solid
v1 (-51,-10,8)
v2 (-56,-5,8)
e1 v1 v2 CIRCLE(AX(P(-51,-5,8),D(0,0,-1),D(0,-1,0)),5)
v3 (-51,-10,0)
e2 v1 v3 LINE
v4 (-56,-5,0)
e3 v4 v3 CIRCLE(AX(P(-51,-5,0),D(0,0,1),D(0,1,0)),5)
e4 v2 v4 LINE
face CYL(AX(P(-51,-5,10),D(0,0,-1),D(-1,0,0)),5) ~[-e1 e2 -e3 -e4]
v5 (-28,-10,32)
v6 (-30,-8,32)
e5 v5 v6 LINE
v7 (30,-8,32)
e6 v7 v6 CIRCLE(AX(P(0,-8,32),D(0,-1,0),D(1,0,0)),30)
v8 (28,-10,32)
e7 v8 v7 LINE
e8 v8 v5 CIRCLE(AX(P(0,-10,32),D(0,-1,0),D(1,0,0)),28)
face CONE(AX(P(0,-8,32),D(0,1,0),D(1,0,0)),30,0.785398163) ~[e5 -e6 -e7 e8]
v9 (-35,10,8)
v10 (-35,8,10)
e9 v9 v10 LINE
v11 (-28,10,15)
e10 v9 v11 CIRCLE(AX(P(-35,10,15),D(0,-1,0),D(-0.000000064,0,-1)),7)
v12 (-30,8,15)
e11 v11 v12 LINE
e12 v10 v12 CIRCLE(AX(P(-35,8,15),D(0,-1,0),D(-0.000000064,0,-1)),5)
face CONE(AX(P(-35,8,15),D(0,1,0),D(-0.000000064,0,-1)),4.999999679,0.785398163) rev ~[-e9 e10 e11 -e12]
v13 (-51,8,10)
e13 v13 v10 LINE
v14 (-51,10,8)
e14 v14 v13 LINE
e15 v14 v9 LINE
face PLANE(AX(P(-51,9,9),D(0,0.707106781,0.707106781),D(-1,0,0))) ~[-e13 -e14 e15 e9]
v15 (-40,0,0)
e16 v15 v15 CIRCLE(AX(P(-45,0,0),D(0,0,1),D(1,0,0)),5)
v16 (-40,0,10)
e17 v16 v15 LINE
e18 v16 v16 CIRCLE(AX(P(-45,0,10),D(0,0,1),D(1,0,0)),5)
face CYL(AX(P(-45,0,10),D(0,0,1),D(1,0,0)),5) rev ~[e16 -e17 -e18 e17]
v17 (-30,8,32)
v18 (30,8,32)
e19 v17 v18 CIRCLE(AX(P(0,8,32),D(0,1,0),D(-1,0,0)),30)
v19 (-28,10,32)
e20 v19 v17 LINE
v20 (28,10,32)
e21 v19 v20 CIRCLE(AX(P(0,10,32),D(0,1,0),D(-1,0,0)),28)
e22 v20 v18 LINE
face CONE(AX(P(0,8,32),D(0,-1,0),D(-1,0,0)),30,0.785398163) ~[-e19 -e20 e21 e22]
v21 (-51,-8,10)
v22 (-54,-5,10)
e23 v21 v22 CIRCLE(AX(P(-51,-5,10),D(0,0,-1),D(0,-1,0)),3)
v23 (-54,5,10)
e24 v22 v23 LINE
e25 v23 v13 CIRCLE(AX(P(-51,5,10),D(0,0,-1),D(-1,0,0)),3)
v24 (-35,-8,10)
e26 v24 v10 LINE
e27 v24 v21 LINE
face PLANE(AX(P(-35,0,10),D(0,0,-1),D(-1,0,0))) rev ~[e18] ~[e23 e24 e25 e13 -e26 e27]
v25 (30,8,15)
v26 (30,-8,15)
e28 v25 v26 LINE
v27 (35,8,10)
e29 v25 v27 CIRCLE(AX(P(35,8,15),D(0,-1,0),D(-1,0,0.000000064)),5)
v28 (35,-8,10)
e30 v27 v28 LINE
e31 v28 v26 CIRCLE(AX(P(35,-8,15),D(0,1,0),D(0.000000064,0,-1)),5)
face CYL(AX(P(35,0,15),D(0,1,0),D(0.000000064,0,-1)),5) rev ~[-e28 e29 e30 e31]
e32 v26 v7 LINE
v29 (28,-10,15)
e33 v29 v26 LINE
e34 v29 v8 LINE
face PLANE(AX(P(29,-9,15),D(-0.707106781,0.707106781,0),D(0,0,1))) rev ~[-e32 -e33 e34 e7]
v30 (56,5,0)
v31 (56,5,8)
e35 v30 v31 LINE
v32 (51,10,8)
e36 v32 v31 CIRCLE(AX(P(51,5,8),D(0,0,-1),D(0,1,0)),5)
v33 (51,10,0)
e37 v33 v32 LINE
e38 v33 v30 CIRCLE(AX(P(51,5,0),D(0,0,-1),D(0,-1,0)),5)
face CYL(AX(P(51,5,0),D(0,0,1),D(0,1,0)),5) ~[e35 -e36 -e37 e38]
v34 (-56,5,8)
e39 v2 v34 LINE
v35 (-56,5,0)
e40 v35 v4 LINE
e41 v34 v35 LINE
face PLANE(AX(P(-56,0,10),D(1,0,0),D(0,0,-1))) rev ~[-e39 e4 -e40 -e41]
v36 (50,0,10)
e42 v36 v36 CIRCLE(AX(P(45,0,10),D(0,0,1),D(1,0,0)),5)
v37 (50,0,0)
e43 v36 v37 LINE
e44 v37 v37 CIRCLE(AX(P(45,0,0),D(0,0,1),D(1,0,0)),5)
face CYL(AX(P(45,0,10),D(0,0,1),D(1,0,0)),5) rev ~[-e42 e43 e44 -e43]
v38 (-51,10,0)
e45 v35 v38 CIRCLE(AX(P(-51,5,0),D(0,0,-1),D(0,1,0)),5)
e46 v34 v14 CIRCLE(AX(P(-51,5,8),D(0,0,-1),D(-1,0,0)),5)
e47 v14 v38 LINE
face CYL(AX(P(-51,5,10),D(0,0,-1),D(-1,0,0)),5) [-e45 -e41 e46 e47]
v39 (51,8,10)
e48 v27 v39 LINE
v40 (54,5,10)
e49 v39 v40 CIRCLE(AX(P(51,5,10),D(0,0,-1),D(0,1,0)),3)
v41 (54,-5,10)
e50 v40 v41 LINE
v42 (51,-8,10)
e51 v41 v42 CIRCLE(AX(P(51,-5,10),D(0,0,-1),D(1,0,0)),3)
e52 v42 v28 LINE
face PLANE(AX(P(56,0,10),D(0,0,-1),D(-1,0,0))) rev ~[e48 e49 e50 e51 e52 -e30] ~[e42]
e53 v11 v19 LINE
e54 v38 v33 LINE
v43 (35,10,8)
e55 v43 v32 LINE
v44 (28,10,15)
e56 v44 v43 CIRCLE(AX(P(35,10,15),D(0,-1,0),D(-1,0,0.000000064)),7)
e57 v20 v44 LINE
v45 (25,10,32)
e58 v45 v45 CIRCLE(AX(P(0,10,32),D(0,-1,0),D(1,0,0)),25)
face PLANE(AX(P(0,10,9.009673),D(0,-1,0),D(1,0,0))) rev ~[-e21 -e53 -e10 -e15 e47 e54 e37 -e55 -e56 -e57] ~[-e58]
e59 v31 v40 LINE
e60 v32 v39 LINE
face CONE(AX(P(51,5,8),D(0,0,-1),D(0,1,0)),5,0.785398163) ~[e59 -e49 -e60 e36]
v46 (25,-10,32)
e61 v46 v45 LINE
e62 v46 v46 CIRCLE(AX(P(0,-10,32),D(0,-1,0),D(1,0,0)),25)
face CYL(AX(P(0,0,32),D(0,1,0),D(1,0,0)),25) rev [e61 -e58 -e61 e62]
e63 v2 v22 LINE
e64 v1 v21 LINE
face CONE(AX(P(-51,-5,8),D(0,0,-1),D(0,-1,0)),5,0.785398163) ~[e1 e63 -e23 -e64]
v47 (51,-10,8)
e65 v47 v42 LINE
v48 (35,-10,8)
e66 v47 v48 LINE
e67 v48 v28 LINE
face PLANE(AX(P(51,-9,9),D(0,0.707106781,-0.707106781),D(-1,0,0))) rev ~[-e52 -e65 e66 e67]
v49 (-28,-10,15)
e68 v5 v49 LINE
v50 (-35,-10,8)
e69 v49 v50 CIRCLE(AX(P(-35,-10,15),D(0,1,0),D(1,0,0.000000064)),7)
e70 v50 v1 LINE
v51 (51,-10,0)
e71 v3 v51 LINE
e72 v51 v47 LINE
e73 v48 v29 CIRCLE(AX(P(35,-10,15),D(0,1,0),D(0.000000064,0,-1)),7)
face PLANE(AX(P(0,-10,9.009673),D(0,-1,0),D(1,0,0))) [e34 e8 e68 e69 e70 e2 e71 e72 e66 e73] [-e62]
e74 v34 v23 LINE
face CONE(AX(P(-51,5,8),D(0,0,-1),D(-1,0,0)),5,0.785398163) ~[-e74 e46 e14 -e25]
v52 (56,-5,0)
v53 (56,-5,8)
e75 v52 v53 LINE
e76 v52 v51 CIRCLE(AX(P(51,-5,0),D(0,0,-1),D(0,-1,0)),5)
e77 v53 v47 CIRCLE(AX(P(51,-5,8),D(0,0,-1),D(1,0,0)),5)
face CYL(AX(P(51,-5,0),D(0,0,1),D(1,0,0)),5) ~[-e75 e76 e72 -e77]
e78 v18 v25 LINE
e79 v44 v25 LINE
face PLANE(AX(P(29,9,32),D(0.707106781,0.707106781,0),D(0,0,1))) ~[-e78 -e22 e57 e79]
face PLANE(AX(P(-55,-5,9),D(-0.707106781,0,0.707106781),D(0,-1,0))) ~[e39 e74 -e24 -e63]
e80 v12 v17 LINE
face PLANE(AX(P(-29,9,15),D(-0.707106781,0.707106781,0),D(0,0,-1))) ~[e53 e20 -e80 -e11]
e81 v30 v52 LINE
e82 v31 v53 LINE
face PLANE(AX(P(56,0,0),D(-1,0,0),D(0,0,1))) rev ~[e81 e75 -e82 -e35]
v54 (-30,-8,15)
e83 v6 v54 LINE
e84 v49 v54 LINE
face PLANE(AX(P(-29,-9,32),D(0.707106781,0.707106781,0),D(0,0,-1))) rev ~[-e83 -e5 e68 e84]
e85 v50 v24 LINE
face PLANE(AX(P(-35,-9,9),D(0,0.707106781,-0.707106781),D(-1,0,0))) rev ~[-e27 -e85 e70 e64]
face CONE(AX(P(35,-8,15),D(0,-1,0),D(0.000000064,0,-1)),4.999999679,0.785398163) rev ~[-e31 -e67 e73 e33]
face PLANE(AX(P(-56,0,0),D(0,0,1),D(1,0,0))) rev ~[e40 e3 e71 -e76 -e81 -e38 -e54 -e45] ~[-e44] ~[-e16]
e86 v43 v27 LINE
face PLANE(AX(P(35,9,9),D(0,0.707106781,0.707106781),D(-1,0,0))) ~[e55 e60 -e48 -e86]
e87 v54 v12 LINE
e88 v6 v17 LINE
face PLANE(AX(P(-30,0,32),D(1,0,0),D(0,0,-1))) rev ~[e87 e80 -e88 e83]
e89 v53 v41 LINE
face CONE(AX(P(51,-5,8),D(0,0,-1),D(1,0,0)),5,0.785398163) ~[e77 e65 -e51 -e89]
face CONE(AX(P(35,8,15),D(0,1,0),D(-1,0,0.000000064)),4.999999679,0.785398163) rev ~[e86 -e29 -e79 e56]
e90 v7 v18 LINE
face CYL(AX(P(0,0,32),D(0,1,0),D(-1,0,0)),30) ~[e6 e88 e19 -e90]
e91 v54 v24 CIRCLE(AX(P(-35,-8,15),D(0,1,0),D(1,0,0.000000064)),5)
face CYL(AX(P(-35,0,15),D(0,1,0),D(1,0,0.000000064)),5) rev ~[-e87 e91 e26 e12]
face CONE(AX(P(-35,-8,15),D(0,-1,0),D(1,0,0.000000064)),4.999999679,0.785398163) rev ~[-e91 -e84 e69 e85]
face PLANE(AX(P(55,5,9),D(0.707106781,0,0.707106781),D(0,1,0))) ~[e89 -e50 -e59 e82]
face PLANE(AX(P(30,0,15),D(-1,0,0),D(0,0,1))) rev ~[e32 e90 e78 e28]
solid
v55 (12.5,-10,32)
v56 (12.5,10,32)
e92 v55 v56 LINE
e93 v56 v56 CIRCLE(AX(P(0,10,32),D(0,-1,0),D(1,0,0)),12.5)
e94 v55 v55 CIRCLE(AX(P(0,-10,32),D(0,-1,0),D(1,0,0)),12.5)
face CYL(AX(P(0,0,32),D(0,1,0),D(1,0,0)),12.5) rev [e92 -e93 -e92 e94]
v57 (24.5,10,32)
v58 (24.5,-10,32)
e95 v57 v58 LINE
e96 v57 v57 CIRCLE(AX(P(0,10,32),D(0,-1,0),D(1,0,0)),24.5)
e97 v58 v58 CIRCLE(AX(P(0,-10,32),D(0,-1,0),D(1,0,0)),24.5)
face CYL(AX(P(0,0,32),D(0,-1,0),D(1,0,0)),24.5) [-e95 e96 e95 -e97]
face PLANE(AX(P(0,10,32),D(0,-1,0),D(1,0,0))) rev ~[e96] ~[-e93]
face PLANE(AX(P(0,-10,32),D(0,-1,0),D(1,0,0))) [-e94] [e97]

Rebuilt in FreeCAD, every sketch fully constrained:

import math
import FreeCAD as App
import Part
import Sketcher
from FreeCAD import Vector


def edges_at(feature, points):
    """Names of the edges that pass closest to the given points."""
    edges = feature.Shape.Edges
    near = lambda p: min(range(len(edges)), key=lambda i: edges[i].distToShape(Part.Vertex(*p))[0])
    return sorted({f"Edge{near(p) + 1}" for p in points})

doc = App.newDocument("Part")
body = doc.addObject("PartDesign::Body", "Body")
body.AllowCompound = True

# Sketch on XZ plane
sketch1 = doc.addObject("Sketcher::SketchObject", "Sketch")
body.addObject(sketch1)
sketch1.AttachmentSupport = (doc.XZ_Plane, [""])
sketch1.MapMode = "FlatFace"
sketch1.addGeometry([
    Part.LineSegment(Vector(-56, 10, 0), Vector(-56, 0, 0)),  # 0
    Part.LineSegment(Vector(-56, 0, 0), Vector(56, 0, 0)),  # 1
    Part.LineSegment(Vector(56, 0, 0), Vector(56, 10, 0)),  # 2
    Part.LineSegment(Vector(56, 10, 0), Vector(35, 10, 0)),  # 3
    Part.ArcOfCircle(Part.Circle(Vector(35, 15, 0), Vector(0, 0, 1), 5), math.radians(180), math.radians(270)),  # 4
    Part.LineSegment(Vector(30, 15, 0), Vector(30, 32, 0)),  # 5
    Part.ArcOfCircle(Part.Circle(Vector(0, 32, 0), Vector(0, 0, 1), 30), math.radians(0), math.radians(180)),  # 6
    Part.LineSegment(Vector(-30, 32, 0), Vector(-30, 15, 0)),  # 7
    Part.ArcOfCircle(Part.Circle(Vector(-35, 15, 0), Vector(0, 0, 1), 5), math.radians(-90), math.radians(0)),  # 8
    Part.LineSegment(Vector(-35, 10, 0), Vector(-56, 10, 0)),  # 9
    Part.Circle(Vector(0, 32, 0), Vector(0, 0, 1), 25),  # 10
    Part.Circle(Vector(0, 32, 0), Vector(0, 0, 1), 24.5),  # 11
    Part.Circle(Vector(0, 32, 0), Vector(0, 0, 1), 12.5),  # 12
], False)
sketch1.addConstraint([
    Sketcher.Constraint("Coincident", 0, 2, 1, 1),
    Sketcher.Constraint("Coincident", 1, 2, 2, 1),
    Sketcher.Constraint("Coincident", 2, 2, 3, 1),
    Sketcher.Constraint("Tangent", 3, 2, 4, 2),
    Sketcher.Constraint("Tangent", 4, 1, 5, 1),
    Sketcher.Constraint("Tangent", 5, 2, 6, 1),
    Sketcher.Constraint("Tangent", 6, 2, 7, 1),
    Sketcher.Constraint("Tangent", 7, 2, 8, 2),
    Sketcher.Constraint("Tangent", 8, 1, 9, 1),
    Sketcher.Constraint("Coincident", 9, 2, 0, 1),
    Sketcher.Constraint("Vertical", 0),
    Sketcher.Constraint("Horizontal", 1),
    Sketcher.Constraint("Vertical", 2),
    Sketcher.Constraint("Horizontal", 3),
    Sketcher.Constraint("Vertical", 5),
    Sketcher.Constraint("Vertical", 7),
    Sketcher.Constraint("Horizontal", 9),
    Sketcher.Constraint("Coincident", 10, 3, 6, 3),
    Sketcher.Constraint("Coincident", 11, 3, 6, 3),
    Sketcher.Constraint("Coincident", 12, 3, 6, 3),
    Sketcher.Constraint("Equal", 4, 8),
    Sketcher.Constraint("Symmetric", 0, 2, 1, 2, -1, 1),
    Sketcher.Constraint("Symmetric", 4, 3, 8, 3, -2),
    Sketcher.Constraint("Diameter", 10, 50.0),
    Sketcher.Constraint("Diameter", 11, 49.0),
    Sketcher.Constraint("Diameter", 12, 25.0),
    Sketcher.Constraint("Radius", 4, 5.0),
    Sketcher.Constraint("Radius", 6, 30.0),
    Sketcher.Constraint("DistanceX", 1, 1, 1, 2, 112.0),
    Sketcher.Constraint("DistanceY", 0, 2, 0, 1, 10.0),
    Sketcher.Constraint("DistanceY", 5, 1, 5, 2, 17.0),
])
pad1 = doc.addObject("PartDesign::Pad", "Pad")
body.addObject(pad1)
pad1.Profile = sketch1
pad1.Length = 20
pad1.Midplane = True
doc.recompute()

fillet = doc.addObject("PartDesign::Fillet", "Fillet")
body.addObject(fillet)
fillet.Base = (pad1, edges_at(pad1, [
    (-56, -10, 5),
    (56, -10, 5),
    (56, 10, 5),
    (-56, 10, 5),
]))
fillet.Radius = 5

# Sketch on XY plane
sketch2 = doc.addObject("Sketcher::SketchObject", "Sketch001")
body.addObject(sketch2)
sketch2.AttachmentSupport = (doc.XY_Plane, [""])
sketch2.MapMode = "FlatFace"
sketch2.AttachmentOffset = App.Placement(Vector(0, 0, 10), App.Rotation())
sketch2.addGeometry([
    Part.Circle(Vector(-45, 0, 0), Vector(0, 0, 1), 5),
    Part.Circle(Vector(45, 0, 0), Vector(0, 0, 1), 5),
], False)
sketch2.addConstraint([
    Sketcher.Constraint("Equal", 0, 1),
    Sketcher.Constraint("Symmetric", 0, 3, 1, 3, -1, 1),
    Sketcher.Constraint("PointOnObject", 0, 3, -1),
    Sketcher.Constraint("Diameter", 0, 10.0),
    Sketcher.Constraint("DistanceX", 0, 3, -1, 1, 45.0),
])
pocket1 = doc.addObject("PartDesign::Pocket", "Pocket")
body.addObject(pocket1)
pocket1.Profile = sketch2
pocket1.Length = 10
doc.recompute()

chamfer = doc.addObject("PartDesign::Chamfer", "Chamfer")
body.addObject(chamfer)
chamfer.Base = (pocket1, edges_at(pocket1, [
    (-30, -10, 23.5),
    (30, -10, 23.5),
    (30, 10, 23.5),
    (-30, 10, 23.5),
]))
chamfer.Size = 2

doc.recompute()
